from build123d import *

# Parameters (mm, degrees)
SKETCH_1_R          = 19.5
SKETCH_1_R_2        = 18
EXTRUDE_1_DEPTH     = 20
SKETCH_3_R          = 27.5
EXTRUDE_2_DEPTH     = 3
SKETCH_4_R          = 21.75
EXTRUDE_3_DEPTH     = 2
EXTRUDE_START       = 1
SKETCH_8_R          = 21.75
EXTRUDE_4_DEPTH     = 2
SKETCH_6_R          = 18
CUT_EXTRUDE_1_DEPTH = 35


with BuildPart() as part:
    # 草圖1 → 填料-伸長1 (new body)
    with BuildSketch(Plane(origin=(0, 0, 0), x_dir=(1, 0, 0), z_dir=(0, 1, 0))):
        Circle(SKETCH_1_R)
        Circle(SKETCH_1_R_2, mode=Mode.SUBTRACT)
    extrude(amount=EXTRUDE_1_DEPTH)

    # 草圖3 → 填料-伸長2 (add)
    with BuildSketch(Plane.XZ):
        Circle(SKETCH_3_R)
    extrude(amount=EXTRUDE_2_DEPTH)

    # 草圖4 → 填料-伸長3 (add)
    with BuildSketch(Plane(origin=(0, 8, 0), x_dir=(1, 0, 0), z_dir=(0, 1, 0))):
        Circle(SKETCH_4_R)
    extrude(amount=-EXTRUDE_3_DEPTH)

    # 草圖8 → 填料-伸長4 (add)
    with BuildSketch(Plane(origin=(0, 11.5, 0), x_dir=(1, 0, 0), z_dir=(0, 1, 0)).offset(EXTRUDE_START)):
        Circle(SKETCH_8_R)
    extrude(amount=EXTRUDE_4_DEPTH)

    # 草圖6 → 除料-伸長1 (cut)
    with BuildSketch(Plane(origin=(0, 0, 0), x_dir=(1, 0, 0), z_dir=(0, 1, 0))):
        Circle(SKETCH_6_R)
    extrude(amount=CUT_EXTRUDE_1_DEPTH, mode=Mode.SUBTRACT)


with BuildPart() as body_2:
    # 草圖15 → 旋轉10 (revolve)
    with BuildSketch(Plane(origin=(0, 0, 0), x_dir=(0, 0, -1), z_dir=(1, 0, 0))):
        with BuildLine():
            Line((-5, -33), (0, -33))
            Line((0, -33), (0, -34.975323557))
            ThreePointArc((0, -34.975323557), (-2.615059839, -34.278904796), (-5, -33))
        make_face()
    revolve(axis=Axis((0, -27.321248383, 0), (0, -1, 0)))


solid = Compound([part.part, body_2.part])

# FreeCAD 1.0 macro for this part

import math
import FreeCAD as App
import Part
import Sketcher
from FreeCAD import Vector
Q = App.Units.Quantity

doc = App.newDocument("Part")
body = doc.addObject("PartDesign::Body", "Body")

sketch1 = body.newObject("Sketcher::SketchObject", "Sketch")
sketch1.AttachmentSupport = (doc.getObject("XZ_Plane"), [""])
sketch1.MapMode = "FlatFace"
sketch1.addGeometry([
    Part.Circle(Vector(0, 0, 0), Vector(0, 0, 1), 20),
    Part.Circle(Vector(0, 0, 0), Vector(0, 0, 1), 18),
], False)
sketch1.addConstraint([
    Sketcher.Constraint("Coincident", 0, 3, -1, 1),
    Sketcher.Constraint("Coincident", 1, 3, -1, 1),
    Sketcher.Constraint("Diameter", 0, Q("39 mm")),
    Sketcher.Constraint("Diameter", 1, Q("36 mm")),
])
pad1 = body.newObject("PartDesign::Pad", "Pad")
pad1.Profile = sketch1
pad1.Length = 20
pad1.Reversed = True

sketch2 = body.newObject("Sketcher::SketchObject", "Sketch001")
sketch2.AttachmentSupport = (doc.getObject("XZ_Plane"), [""])
sketch2.MapMode = "FlatFace"
sketch2.addGeometry(Part.Circle(Vector(0, 0, 0), Vector(0, 0, 1), 28), False)
sketch2.addConstraint([
    Sketcher.Constraint("Coincident", 0, 3, -1, 1),
    Sketcher.Constraint("Diameter", 0, Q("55 mm")),
])
pad2 = body.newObject("PartDesign::Pad", "Pad001")
pad2.Profile = sketch2
pad2.Length = 3

sketch3 = body.newObject("Sketcher::SketchObject", "Sketch002")
sketch3.AttachmentSupport = (doc.getObject("XZ_Plane"), [""])
sketch3.MapMode = "FlatFace"
sketch3.AttachmentOffset = App.Placement(Vector(0, 0, -8), App.Rotation())
sketch3.addGeometry(Part.Circle(Vector(0, 0, 0), Vector(0, 0, 1), 22), False)
sketch3.addConstraint([
    Sketcher.Constraint("Coincident", 0, 3, -1, 1),
    Sketcher.Constraint("Diameter", 0, Q("43.5 mm")),
])
pad3 = body.newObject("PartDesign::Pad", "Pad002")
pad3.Profile = sketch3
pad3.Length = 2

sketch4 = body.newObject("Sketcher::SketchObject", "Sketch003")
sketch4.AttachmentSupport = (doc.getObject("XZ_Plane"), [""])
sketch4.MapMode = "FlatFace"
sketch4.AttachmentOffset = App.Placement(Vector(0, 0, -12.5), App.Rotation())
sketch4.addGeometry(Part.Circle(Vector(0, 0, 0), Vector(0, 0, 1), 22), False)
sketch4.addConstraint([
    Sketcher.Constraint("Coincident", 0, 3, -1, 1),
    Sketcher.Constraint("Diameter", 0, Q("43.5 mm")),
])
pad4 = body.newObject("PartDesign::Pad", "Pad003")
pad4.Profile = sketch4
pad4.Length = 2
pad4.Reversed = True

sketch5 = body.newObject("Sketcher::SketchObject", "Sketch004")
sketch5.AttachmentSupport = (doc.getObject("XZ_Plane"), [""])
sketch5.MapMode = "FlatFace"
sketch5.addGeometry(Part.Circle(Vector(0, 0, 0), Vector(0, 0, 1), 18), False)
sketch5.addConstraint([
    Sketcher.Constraint("Coincident", 0, 3, -1, 1),
    Sketcher.Constraint("Diameter", 0, Q("36 mm")),
])
pocket1 = body.newObject("PartDesign::Pocket", "Pocket")
pocket1.Profile = sketch5
pocket1.Length = 35
body2 = doc.addObject("PartDesign::Body", "Body001")

sketch6 = body2.newObject("Sketcher::SketchObject", "Sketch005")
sketch6.AttachmentSupport = (doc.getObject("YZ_Plane001"), [""])
sketch6.MapMode = "FlatFace"
sketch6.addGeometry([
    Part.LineSegment(Vector(-33, 0, 0), Vector(-33, 5, 0)),
    Part.ArcOfCircle(Part.Circle(Vector(-23.4, -1.7, 0), Vector(0, 0, 1), 11.7), math.radians(145), math.radians(172)),
    Part.LineSegment(Vector(-35, 0, 0), Vector(-33, 0, 0)),
], False)
sketch6.addConstraint([
    Sketcher.Constraint("Coincident", 0, 2, 1, 1),
    Sketcher.Constraint("Coincident", 1, 2, 2, 1),
    Sketcher.Constraint("Coincident", 2, 2, 0, 1),
    Sketcher.Constraint("Vertical", 0),
    Sketcher.Constraint("Horizontal", 2),
    Sketcher.Constraint("PointOnObject", 1, 2, -1),
    Sketcher.Constraint("DistanceY", 0, 1, 0, 2, Q("5 mm")),
    Sketcher.Constraint("DistanceX", 0, 2, -1, 1, Q("33 mm")),
    Sketcher.Constraint("Radius", 1, Q("11.693436 mm")),
    Sketcher.Constraint("DistanceX", 2, 1, 2, 2, Q("1.975324 mm")),
])
revolution = body2.newObject("PartDesign::Revolution", "Revolution")
revolution.Profile = sketch6
revolution.ReferenceAxis = (sketch6, ["H_Axis"])
revolution.Angle = 360

doc.recompute()
